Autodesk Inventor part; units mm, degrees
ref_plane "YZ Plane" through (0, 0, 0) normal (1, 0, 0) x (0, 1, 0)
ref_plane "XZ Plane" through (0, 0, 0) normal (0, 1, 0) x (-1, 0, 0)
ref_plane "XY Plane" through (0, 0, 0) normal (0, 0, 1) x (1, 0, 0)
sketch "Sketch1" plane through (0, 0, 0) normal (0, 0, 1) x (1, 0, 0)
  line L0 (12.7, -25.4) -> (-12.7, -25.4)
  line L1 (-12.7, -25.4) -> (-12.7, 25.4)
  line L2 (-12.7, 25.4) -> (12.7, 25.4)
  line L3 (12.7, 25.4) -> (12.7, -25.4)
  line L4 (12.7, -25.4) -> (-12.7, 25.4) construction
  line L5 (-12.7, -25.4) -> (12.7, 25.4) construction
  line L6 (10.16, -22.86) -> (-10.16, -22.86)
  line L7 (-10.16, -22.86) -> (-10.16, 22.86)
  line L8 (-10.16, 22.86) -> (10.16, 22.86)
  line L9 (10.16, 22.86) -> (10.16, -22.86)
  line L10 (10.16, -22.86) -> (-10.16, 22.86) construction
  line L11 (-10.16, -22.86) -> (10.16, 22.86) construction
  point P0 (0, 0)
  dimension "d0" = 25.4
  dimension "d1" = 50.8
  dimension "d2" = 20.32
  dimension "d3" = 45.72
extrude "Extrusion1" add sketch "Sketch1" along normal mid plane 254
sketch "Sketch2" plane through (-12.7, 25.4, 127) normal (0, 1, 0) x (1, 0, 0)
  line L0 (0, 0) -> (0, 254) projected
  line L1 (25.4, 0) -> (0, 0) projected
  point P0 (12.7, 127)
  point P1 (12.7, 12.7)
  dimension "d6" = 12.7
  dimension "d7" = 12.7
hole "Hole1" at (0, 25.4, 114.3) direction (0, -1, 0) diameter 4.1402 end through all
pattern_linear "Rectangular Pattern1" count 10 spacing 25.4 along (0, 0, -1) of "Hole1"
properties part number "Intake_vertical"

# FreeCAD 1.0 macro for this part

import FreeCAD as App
import Part
import Sketcher

V = App.Vector
Q = App.Units.Quantity

doc = App.newDocument("Part")
body = doc.addObject("PartDesign::Body", "Body")

sketch1 = body.newObject("Sketcher::SketchObject", "Sketch")
sketch1.AttachmentSupport = (doc.getObject("XY_Plane"), [""])
sketch1.MapMode = "FlatFace"
sketch1.addGeometry(Part.LineSegment(V(-12.7, -25.4, 0), V(12.7, -25.4, 0)), False)
sketch1.addGeometry(Part.LineSegment(V(12.7, -25.4, 0), V(12.7, 25.4, 0)), False)
sketch1.addGeometry(Part.LineSegment(V(12.7, 25.4, 0), V(-12.7, 25.4, 0)), False)
sketch1.addGeometry(Part.LineSegment(V(-12.7, 25.4, 0), V(-12.7, -25.4, 0)), False)
sketch1.addGeometry(Part.LineSegment(V(10.16, 22.86, 0), V(10.16, -22.86, 0)), False)
sketch1.addGeometry(Part.LineSegment(V(10.16, -22.86, 0), V(-10.16, -22.86, 0)), False)
sketch1.addGeometry(Part.LineSegment(V(-10.16, -22.86, 0), V(-10.16, 22.86, 0)), False)
sketch1.addGeometry(Part.LineSegment(V(-10.16, 22.86, 0), V(10.16, 22.86, 0)), False)
sketch1.addConstraint(Sketcher.Constraint("Coincident", 0, 2, 1, 1))
sketch1.addConstraint(Sketcher.Constraint("Coincident", 1, 2, 2, 1))
sketch1.addConstraint(Sketcher.Constraint("Coincident", 2, 2, 3, 1))
sketch1.addConstraint(Sketcher.Constraint("Coincident", 3, 2, 0, 1))
sketch1.addConstraint(Sketcher.Constraint("Coincident", 4, 2, 5, 1))
sketch1.addConstraint(Sketcher.Constraint("Coincident", 5, 2, 6, 1))
sketch1.addConstraint(Sketcher.Constraint("Coincident", 6, 2, 7, 1))
sketch1.addConstraint(Sketcher.Constraint("Coincident", 7, 2, 4, 1))
sketch1.addConstraint(Sketcher.Constraint("Horizontal", 0))
sketch1.addConstraint(Sketcher.Constraint("Vertical", 1))
sketch1.addConstraint(Sketcher.Constraint("Horizontal", 2))
sketch1.addConstraint(Sketcher.Constraint("Vertical", 3))
sketch1.addConstraint(Sketcher.Constraint("Vertical", 4))
sketch1.addConstraint(Sketcher.Constraint("Horizontal", 5))
sketch1.addConstraint(Sketcher.Constraint("Vertical", 6))
sketch1.addConstraint(Sketcher.Constraint("Horizontal", 7))
sketch1.addConstraint(Sketcher.Constraint("Symmetric", 0, 2, 2, 2, -1, 1))
sketch1.addConstraint(Sketcher.Constraint("Symmetric", 4, 2, 6, 2, -1, 1))
sketch1.addConstraint(Sketcher.Constraint("DistanceX", 0, 1, 0, 2, Q("1 in")))
sketch1.addConstraint(Sketcher.Constraint("DistanceY", 1, 1, 1, 2, Q("2 in")))
sketch1.addConstraint(Sketcher.Constraint("DistanceX", 5, 2, 5, 1, Q("0.8 in")))
sketch1.addConstraint(Sketcher.Constraint("DistanceY", 4, 2, 4, 1, Q("1.8 in")))
pad1 = body.newObject("PartDesign::Pad", "Pad")
pad1.Profile = sketch1
pad1.Length = Q("10 in")
pad1.Midplane = True

sketch2 = body.newObject("Sketcher::SketchObject", "Sketch001")
sketch2.AttachmentSupport = (doc.getObject("XZ_Plane"), [""])
sketch2.MapMode = "FlatFace"
sketch2.AttachmentOffset = App.Placement(V(0, 0, -1 * 25.4), App.Rotation())
sketch2.addGeometry(Part.Circle(V(0, 114.3, 0), V(0, 0, 1), 2.0701), False)
sketch2.addConstraint(Sketcher.Constraint("PointOnObject", 0, 3, -2))
sketch2.addConstraint(Sketcher.Constraint("Diameter", 0, Q("0.163 in")))
sketch2.addConstraint(Sketcher.Constraint("DistanceY", -1, 1, 0, 3, Q("4.5 in")))
doc.recompute()
hole = body.newObject("PartDesign::Hole", "Hole")
hole.Profile = sketch2
hole.ThreadType = "None"
hole.Diameter = Q("0.163 in")
hole.DepthType = "ThroughAll"
hole.Reversed = True
doc.recompute()

linearpattern = body.newObject("PartDesign::LinearPattern", "LinearPattern")
linearpattern.Originals = [hole]
linearpattern.Direction = (doc.getObject("Z_Axis"), [""])
linearpattern.Mode = "offset"
linearpattern.Offset = Q("1 in")
linearpattern.Occurrences = 10
linearpattern.Reversed = True
body.Tip = linearpattern

doc.recompute()
